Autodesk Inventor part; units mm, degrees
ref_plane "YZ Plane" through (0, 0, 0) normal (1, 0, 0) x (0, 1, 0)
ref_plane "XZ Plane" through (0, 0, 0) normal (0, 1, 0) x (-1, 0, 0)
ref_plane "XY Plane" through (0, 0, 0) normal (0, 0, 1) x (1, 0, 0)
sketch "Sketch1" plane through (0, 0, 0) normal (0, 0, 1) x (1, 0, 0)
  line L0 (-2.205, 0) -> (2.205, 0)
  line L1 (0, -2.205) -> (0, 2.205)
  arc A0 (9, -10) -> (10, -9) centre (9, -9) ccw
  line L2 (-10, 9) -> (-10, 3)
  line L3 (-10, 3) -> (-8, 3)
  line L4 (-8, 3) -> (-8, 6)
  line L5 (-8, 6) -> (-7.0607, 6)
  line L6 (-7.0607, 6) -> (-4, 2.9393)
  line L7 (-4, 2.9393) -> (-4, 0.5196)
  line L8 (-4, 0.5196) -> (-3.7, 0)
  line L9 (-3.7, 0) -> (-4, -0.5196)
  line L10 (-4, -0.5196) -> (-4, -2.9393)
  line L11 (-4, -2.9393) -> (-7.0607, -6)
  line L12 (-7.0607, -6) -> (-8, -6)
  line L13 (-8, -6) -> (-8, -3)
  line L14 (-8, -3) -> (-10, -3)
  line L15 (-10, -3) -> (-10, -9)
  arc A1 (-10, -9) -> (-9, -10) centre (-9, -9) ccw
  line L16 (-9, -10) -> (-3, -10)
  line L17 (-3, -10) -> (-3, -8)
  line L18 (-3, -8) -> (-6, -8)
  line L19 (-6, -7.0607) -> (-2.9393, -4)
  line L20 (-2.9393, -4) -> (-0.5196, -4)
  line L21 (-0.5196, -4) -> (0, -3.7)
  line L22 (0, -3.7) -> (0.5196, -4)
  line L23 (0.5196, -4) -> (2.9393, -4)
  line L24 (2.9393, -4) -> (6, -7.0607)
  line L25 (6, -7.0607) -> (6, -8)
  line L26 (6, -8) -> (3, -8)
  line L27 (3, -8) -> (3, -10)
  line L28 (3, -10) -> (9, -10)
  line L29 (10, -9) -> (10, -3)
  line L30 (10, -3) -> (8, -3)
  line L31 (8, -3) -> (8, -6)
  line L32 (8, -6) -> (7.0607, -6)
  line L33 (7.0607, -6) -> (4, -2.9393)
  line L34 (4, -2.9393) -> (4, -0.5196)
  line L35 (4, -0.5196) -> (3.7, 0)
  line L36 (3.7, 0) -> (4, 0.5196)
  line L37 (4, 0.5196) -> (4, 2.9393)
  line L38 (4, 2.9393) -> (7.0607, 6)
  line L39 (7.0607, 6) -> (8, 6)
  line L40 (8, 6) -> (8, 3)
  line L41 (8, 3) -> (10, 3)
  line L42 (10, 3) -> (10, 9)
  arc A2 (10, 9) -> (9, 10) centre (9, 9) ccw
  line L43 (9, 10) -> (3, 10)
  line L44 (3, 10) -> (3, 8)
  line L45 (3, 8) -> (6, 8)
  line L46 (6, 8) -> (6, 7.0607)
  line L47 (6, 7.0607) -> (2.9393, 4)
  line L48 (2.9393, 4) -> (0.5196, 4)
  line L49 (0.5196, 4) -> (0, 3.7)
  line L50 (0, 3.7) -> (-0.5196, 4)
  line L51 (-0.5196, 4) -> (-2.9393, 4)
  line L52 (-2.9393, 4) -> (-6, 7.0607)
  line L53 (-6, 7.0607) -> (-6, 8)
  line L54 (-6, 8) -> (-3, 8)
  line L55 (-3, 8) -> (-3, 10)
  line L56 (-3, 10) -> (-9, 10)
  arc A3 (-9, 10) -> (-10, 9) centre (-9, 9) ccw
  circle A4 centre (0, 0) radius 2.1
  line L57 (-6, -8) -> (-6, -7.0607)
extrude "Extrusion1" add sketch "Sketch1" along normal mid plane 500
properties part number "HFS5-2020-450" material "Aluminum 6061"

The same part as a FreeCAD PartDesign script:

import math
import FreeCAD as App
import Part
import Sketcher

V = App.Vector
Q = App.Units.Quantity

doc = App.newDocument("Part")
body = doc.addObject("PartDesign::Body", "Body")

# Sketch on XY plane
sketch1 = doc.addObject("Sketcher::SketchObject", "Sketch")
body.addObject(sketch1)
sketch1.AttachmentSupport = (doc.XY_Plane, [""])
sketch1.MapMode = "FlatFace"
sketch1.addGeometry(Part.LineSegment(V(3, -10, 0), V(9, -10, 0)), False)
sketch1.addGeometry(Part.ArcOfCircle(Part.Circle(V(9, -9, 0), V(0, 0, 1), 1), math.radians(-90), math.radians(0)), False)
sketch1.addGeometry(Part.LineSegment(V(10, -9, 0), V(10, -3, 0)), False)
sketch1.addGeometry(Part.LineSegment(V(10, -3, 0), V(8, -3, 0)), False)
sketch1.addGeometry(Part.LineSegment(V(8, -3, 0), V(8, -6, 0)), False)
sketch1.addGeometry(Part.LineSegment(V(8, -6, 0), V(7.1, -6, 0)), False)
sketch1.addGeometry(Part.LineSegment(V(7.1, -6, 0), V(4, -2.9, 0)), False)
sketch1.addGeometry(Part.LineSegment(V(4, -2.9, 0), V(4, -0.5, 0)), False)
sketch1.addGeometry(Part.LineSegment(V(4, -0.5, 0), V(3.7, 0, 0)), False)
sketch1.addGeometry(Part.LineSegment(V(3.7, 0, 0), V(4, 0.5, 0)), False)
sketch1.addGeometry(Part.LineSegment(V(4, 0.5, 0), V(4, 2.9, 0)), False)
sketch1.addGeometry(Part.LineSegment(V(4, 2.9, 0), V(7.1, 6, 0)), False)
sketch1.addGeometry(Part.LineSegment(V(7.1, 6, 0), V(8, 6, 0)), False)
sketch1.addGeometry(Part.LineSegment(V(8, 6, 0), V(8, 3, 0)), False)
sketch1.addGeometry(Part.LineSegment(V(8, 3, 0), V(10, 3, 0)), False)
sketch1.addGeometry(Part.LineSegment(V(10, 3, 0), V(10, 9, 0)), False)
sketch1.addGeometry(Part.ArcOfCircle(Part.Circle(V(9, 9, 0), V(0, 0, 1), 1), math.radians(0), math.radians(90)), False)
sketch1.addGeometry(Part.LineSegment(V(9, 10, 0), V(3, 10, 0)), False)
sketch1.addGeometry(Part.LineSegment(V(3, 10, 0), V(3, 8, 0)), False)
sketch1.addGeometry(Part.LineSegment(V(3, 8, 0), V(6, 8, 0)), False)
sketch1.addGeometry(Part.LineSegment(V(6, 8, 0), V(6, 7.1, 0)), False)
sketch1.addGeometry(Part.LineSegment(V(6, 7.1, 0), V(2.9, 4, 0)), False)
sketch1.addGeometry(Part.LineSegment(V(2.9, 4, 0), V(0.5, 4, 0)), False)
sketch1.addGeometry(Part.LineSegment(V(0.5, 4, 0), V(0, 3.7, 0)), False)
sketch1.addGeometry(Part.LineSegment(V(0, 3.7, 0), V(-0.5, 4, 0)), False)
sketch1.addGeometry(Part.LineSegment(V(-0.5, 4, 0), V(-2.9, 4, 0)), False)
sketch1.addGeometry(Part.LineSegment(V(-2.9, 4, 0), V(-6, 7.1, 0)), False)
sketch1.addGeometry(Part.LineSegment(V(-6, 7.1, 0), V(-6, 8, 0)), False)
sketch1.addGeometry(Part.LineSegment(V(-6, 8, 0), V(-3, 8, 0)), False)
sketch1.addGeometry(Part.LineSegment(V(-3, 8, 0), V(-3, 10, 0)), False)
sketch1.addGeometry(Part.LineSegment(V(-3, 10, 0), V(-9, 10, 0)), False)
sketch1.addGeometry(Part.ArcOfCircle(Part.Circle(V(-9, 9, 0), V(0, 0, 1), 1), math.radians(90), math.radians(180)), False)
sketch1.addGeometry(Part.LineSegment(V(-10, 9, 0), V(-10, 3, 0)), False)
sketch1.addGeometry(Part.LineSegment(V(-10, 3, 0), V(-8, 3, 0)), False)
sketch1.addGeometry(Part.LineSegment(V(-8, 3, 0), V(-8, 6, 0)), False)
sketch1.addGeometry(Part.LineSegment(V(-8, 6, 0), V(-7.1, 6, 0)), False)
sketch1.addGeometry(Part.LineSegment(V(-7.1, 6, 0), V(-4, 2.9, 0)), False)
sketch1.addGeometry(Part.LineSegment(V(-4, 2.9, 0), V(-4, 0.5, 0)), False)
sketch1.addGeometry(Part.LineSegment(V(-4, 0.5, 0), V(-3.7, 0, 0)), False)
sketch1.addGeometry(Part.LineSegment(V(-3.7, 0, 0), V(-4, -0.5, 0)), False)
sketch1.addGeometry(Part.LineSegment(V(-4, -0.5, 0), V(-4, -2.9, 0)), False)
sketch1.addGeometry(Part.LineSegment(V(-4, -2.9, 0), V(-7.1, -6, 0)), False)
sketch1.addGeometry(Part.LineSegment(V(-7.1, -6, 0), V(-8, -6, 0)), False)
sketch1.addGeometry(Part.LineSegment(V(-8, -6, 0), V(-8, -3, 0)), False)
sketch1.addGeometry(Part.LineSegment(V(-8, -3, 0), V(-10, -3, 0)), False)
sketch1.addGeometry(Part.LineSegment(V(-10, -3, 0), V(-10, -9, 0)), False)
sketch1.addGeometry(Part.ArcOfCircle(Part.Circle(V(-9, -9, 0), V(0, 0, 1), 1), math.radians(180), math.radians(270)), False)
sketch1.addGeometry(Part.LineSegment(V(-9, -10, 0), V(-3, -10, 0)), False)
sketch1.addGeometry(Part.LineSegment(V(-3, -10, 0), V(-3, -8, 0)), False)
sketch1.addGeometry(Part.LineSegment(V(-3, -8, 0), V(-6, -8, 0)), False)
sketch1.addGeometry(Part.LineSegment(V(-6, -8, 0), V(-6, -7.1, 0)), False)
sketch1.addGeometry(Part.LineSegment(V(-6, -7.1, 0), V(-2.9, -4, 0)), False)
sketch1.addGeometry(Part.LineSegment(V(-2.9, -4, 0), V(-0.5, -4, 0)), False)
sketch1.addGeometry(Part.LineSegment(V(-0.5, -4, 0), V(0, -3.7, 0)), False)
sketch1.addGeometry(Part.LineSegment(V(0, -3.7, 0), V(0.5, -4, 0)), False)
sketch1.addGeometry(Part.LineSegment(V(0.5, -4, 0), V(2.9, -4, 0)), False)
sketch1.addGeometry(Part.LineSegment(V(2.9, -4, 0), V(6, -7.1, 0)), False)
sketch1.addGeometry(Part.LineSegment(V(6, -7.1, 0), V(6, -8, 0)), False)
sketch1.addGeometry(Part.LineSegment(V(6, -8, 0), V(3, -8, 0)), False)
sketch1.addGeometry(Part.LineSegment(V(3, -8, 0), V(3, -10, 0)), False)
sketch1.addGeometry(Part.Circle(V(0, 0, 0), V(0, 0, 1), 2.1), False)
sketch1.addConstraint(Sketcher.Constraint("Tangent", 0, 2, 1, 1))
sketch1.addConstraint(Sketcher.Constraint("Tangent", 1, 2, 2, 1))
sketch1.addConstraint(Sketcher.Constraint("Coincident", 2, 2, 3, 1))
sketch1.addConstraint(Sketcher.Constraint("Coincident", 3, 2, 4, 1))
sketch1.addConstraint(Sketcher.Constraint("Coincident", 4, 2, 5, 1))
sketch1.addConstraint(Sketcher.Constraint("Coincident", 5, 2, 6, 1))
sketch1.addConstraint(Sketcher.Constraint("Coincident", 6, 2, 7, 1))
sketch1.addConstraint(Sketcher.Constraint("Coincident", 7, 2, 8, 1))
sketch1.addConstraint(Sketcher.Constraint("Coincident", 8, 2, 9, 1))
sketch1.addConstraint(Sketcher.Constraint("Coincident", 9, 2, 10, 1))
sketch1.addConstraint(Sketcher.Constraint("Coincident", 10, 2, 11, 1))
sketch1.addConstraint(Sketcher.Constraint("Coincident", 11, 2, 12, 1))
sketch1.addConstraint(Sketcher.Constraint("Coincident", 12, 2, 13, 1))
sketch1.addConstraint(Sketcher.Constraint("Coincident", 13, 2, 14, 1))
sketch1.addConstraint(Sketcher.Constraint("Coincident", 14, 2, 15, 1))
sketch1.addConstraint(Sketcher.Constraint("Tangent", 15, 2, 16, 1))
sketch1.addConstraint(Sketcher.Constraint("Tangent", 16, 2, 17, 1))
sketch1.addConstraint(Sketcher.Constraint("Coincident", 17, 2, 18, 1))
sketch1.addConstraint(Sketcher.Constraint("Coincident", 18, 2, 19, 1))
sketch1.addConstraint(Sketcher.Constraint("Coincident", 19, 2, 20, 1))
sketch1.addConstraint(Sketcher.Constraint("Coincident", 20, 2, 21, 1))
sketch1.addConstraint(Sketcher.Constraint("Coincident", 21, 2, 22, 1))
sketch1.addConstraint(Sketcher.Constraint("Coincident", 22, 2, 23, 1))
sketch1.addConstraint(Sketcher.Constraint("Coincident", 23, 2, 24, 1))
sketch1.addConstraint(Sketcher.Constraint("Coincident", 24, 2, 25, 1))
sketch1.addConstraint(Sketcher.Constraint("Coincident", 25, 2, 26, 1))
sketch1.addConstraint(Sketcher.Constraint("Coincident", 26, 2, 27, 1))
sketch1.addConstraint(Sketcher.Constraint("Coincident", 27, 2, 28, 1))
sketch1.addConstraint(Sketcher.Constraint("Coincident", 28, 2, 29, 1))
sketch1.addConstraint(Sketcher.Constraint("Coincident", 29, 2, 30, 1))
sketch1.addConstraint(Sketcher.Constraint("Tangent", 30, 2, 31, 1))
sketch1.addConstraint(Sketcher.Constraint("Tangent", 31, 2, 32, 1))
sketch1.addConstraint(Sketcher.Constraint("Coincident", 32, 2, 33, 1))
sketch1.addConstraint(Sketcher.Constraint("Coincident", 33, 2, 34, 1))
sketch1.addConstraint(Sketcher.Constraint("Coincident", 34, 2, 35, 1))
sketch1.addConstraint(Sketcher.Constraint("Coincident", 35, 2, 36, 1))
sketch1.addConstraint(Sketcher.Constraint("Coincident", 36, 2, 37, 1))
sketch1.addConstraint(Sketcher.Constraint("Coincident", 37, 2, 38, 1))
sketch1.addConstraint(Sketcher.Constraint("Coincident", 38, 2, 39, 1))
sketch1.addConstraint(Sketcher.Constraint("Coincident", 39, 2, 40, 1))
sketch1.addConstraint(Sketcher.Constraint("Coincident", 40, 2, 41, 1))
sketch1.addConstraint(Sketcher.Constraint("Coincident", 41, 2, 42, 1))
sketch1.addConstraint(Sketcher.Constraint("Coincident", 42, 2, 43, 1))
sketch1.addConstraint(Sketcher.Constraint("Coincident", 43, 2, 44, 1))
sketch1.addConstraint(Sketcher.Constraint("Coincident", 44, 2, 45, 1))
sketch1.addConstraint(Sketcher.Constraint("Tangent", 45, 2, 46, 1))
sketch1.addConstraint(Sketcher.Constraint("Tangent", 46, 2, 47, 1))
sketch1.addConstraint(Sketcher.Constraint("Coincident", 47, 2, 48, 1))
sketch1.addConstraint(Sketcher.Constraint("Coincident", 48, 2, 49, 1))
sketch1.addConstraint(Sketcher.Constraint("Coincident", 49, 2, 50, 1))
sketch1.addConstraint(Sketcher.Constraint("Coincident", 50, 2, 51, 1))
sketch1.addConstraint(Sketcher.Constraint("Coincident", 51, 2, 52, 1))
sketch1.addConstraint(Sketcher.Constraint("Coincident", 52, 2, 53, 1))
sketch1.addConstraint(Sketcher.Constraint("Coincident", 53, 2, 54, 1))
sketch1.addConstraint(Sketcher.Constraint("Coincident", 54, 2, 55, 1))
sketch1.addConstraint(Sketcher.Constraint("Coincident", 55, 2, 56, 1))
sketch1.addConstraint(Sketcher.Constraint("Coincident", 56, 2, 57, 1))
sketch1.addConstraint(Sketcher.Constraint("Coincident", 57, 2, 58, 1))
sketch1.addConstraint(Sketcher.Constraint("Coincident", 58, 2, 59, 1))
sketch1.addConstraint(Sketcher.Constraint("Coincident", 59, 2, 0, 1))
sketch1.addConstraint(Sketcher.Constraint("Horizontal", 0))
sketch1.addConstraint(Sketcher.Constraint("Vertical", 2))
sketch1.addConstraint(Sketcher.Constraint("Horizontal", 3))
sketch1.addConstraint(Sketcher.Constraint("Vertical", 4))
sketch1.addConstraint(Sketcher.Constraint("Horizontal", 5))
sketch1.addConstraint(Sketcher.Constraint("Vertical", 7))
sketch1.addConstraint(Sketcher.Constraint("Vertical", 10))
sketch1.addConstraint(Sketcher.Constraint("Horizontal", 12))
sketch1.addConstraint(Sketcher.Constraint("Vertical", 13))
sketch1.addConstraint(Sketcher.Constraint("Horizontal", 14))
sketch1.addConstraint(Sketcher.Constraint("Vertical", 15))
sketch1.addConstraint(Sketcher.Constraint("Horizontal", 17))
sketch1.addConstraint(Sketcher.Constraint("Vertical", 18))
sketch1.addConstraint(Sketcher.Constraint("Horizontal", 19))
sketch1.addConstraint(Sketcher.Constraint("Vertical", 20))
sketch1.addConstraint(Sketcher.Constraint("Horizontal", 22))
sketch1.addConstraint(Sketcher.Constraint("Horizontal", 25))
sketch1.addConstraint(Sketcher.Constraint("Vertical", 27))
sketch1.addConstraint(Sketcher.Constraint("Horizontal", 28))
sketch1.addConstraint(Sketcher.Constraint("Vertical", 29))
sketch1.addConstraint(Sketcher.Constraint("Horizontal", 30))
sketch1.addConstraint(Sketcher.Constraint("Vertical", 32))
sketch1.addConstraint(Sketcher.Constraint("Horizontal", 33))
sketch1.addConstraint(Sketcher.Constraint("Vertical", 34))
sketch1.addConstraint(Sketcher.Constraint("Horizontal", 35))
sketch1.addConstraint(Sketcher.Constraint("Vertical", 37))
sketch1.addConstraint(Sketcher.Constraint("Vertical", 40))
sketch1.addConstraint(Sketcher.Constraint("Horizontal", 42))
sketch1.addConstraint(Sketcher.Constraint("Vertical", 43))
sketch1.addConstraint(Sketcher.Constraint("Horizontal", 44))
sketch1.addConstraint(Sketcher.Constraint("Vertical", 45))
sketch1.addConstraint(Sketcher.Constraint("Horizontal", 47))
sketch1.addConstraint(Sketcher.Constraint("Vertical", 48))
sketch1.addConstraint(Sketcher.Constraint("Horizontal", 49))
sketch1.addConstraint(Sketcher.Constraint("Vertical", 50))
sketch1.addConstraint(Sketcher.Constraint("Horizontal", 52))
sketch1.addConstraint(Sketcher.Constraint("Horizontal", 55))
sketch1.addConstraint(Sketcher.Constraint("Vertical", 57))
sketch1.addConstraint(Sketcher.Constraint("Horizontal", 58))
sketch1.addConstraint(Sketcher.Constraint("Vertical", 59))
sketch1.addConstraint(Sketcher.Constraint("Coincident", 60, 3, -1, 1))
sketch1.addConstraint(Sketcher.Constraint("Equal", 1, 16))
sketch1.addConstraint(Sketcher.Constraint("Equal", 16, 31))
sketch1.addConstraint(Sketcher.Constraint("Equal", 31, 46))
sketch1.addConstraint(Sketcher.Constraint("Symmetric", 1, 3, 31, 3, -1, 1))
sketch1.addConstraint(Sketcher.Constraint("Symmetric", 16, 3, 46, 3, -1, 1))
sketch1.addConstraint(Sketcher.Constraint("Symmetric", 3, 2, 33, 2, -1, 1))
sketch1.addConstraint(Sketcher.Constraint("Symmetric", 5, 2, 35, 2, -1, 1))
sketch1.addConstraint(Sketcher.Constraint("Symmetric", 6, 2, 36, 2, -1, 1))
sketch1.addConstraint(Sketcher.Constraint("Symmetric", 8, 2, 38, 2, -1, 1))
sketch1.addConstraint(Sketcher.Constraint("Symmetric", 9, 2, 39, 2, -1, 1))
sketch1.addConstraint(Sketcher.Constraint("Symmetric", 11, 2, 41, 2, -1, 1))
sketch1.addConstraint(Sketcher.Constraint("Symmetric", 13, 2, 43, 2, -1, 1))
sketch1.addConstraint(Sketcher.Constraint("Symmetric", 18, 2, 48, 2, -1, 1))
sketch1.addConstraint(Sketcher.Constraint("Symmetric", 20, 2, 50, 2, -1, 1))
sketch1.addConstraint(Sketcher.Constraint("Symmetric", 21, 2, 51, 2, -1, 1))
sketch1.addConstraint(Sketcher.Constraint("Symmetric", 23, 2, 53, 2, -1, 1))
sketch1.addConstraint(Sketcher.Constraint("Symmetric", 24, 2, 54, 2, -1, 1))
sketch1.addConstraint(Sketcher.Constraint("Symmetric", 26, 2, 56, 2, -1, 1))
sketch1.addConstraint(Sketcher.Constraint("Symmetric", 28, 2, 58, 2, -1, 1))
sketch1.addConstraint(Sketcher.Constraint("Symmetric", 16, 3, 31, 3, -2))
sketch1.addConstraint(Sketcher.Constraint("Symmetric", 22, 2, 24, 2, -2))
sketch1.addConstraint(Sketcher.Constraint("Symmetric", 20, 2, 26, 2, -2))
sketch1.addConstraint(Sketcher.Constraint("Symmetric", 18, 2, 28, 2, -2))
sketch1.addConstraint(Sketcher.Constraint("Symmetric", 13, 2, 33, 2, -2))
sketch1.addConstraint(Sketcher.Constraint("Symmetric", 11, 2, 35, 2, -2))
sketch1.addConstraint(Sketcher.Constraint("Symmetric", 10, 2, 36, 2, -2))
sketch1.addConstraint(Sketcher.Constraint("PointOnObject", 8, 2, -1))
sketch1.addConstraint(Sketcher.Constraint("PointOnObject", 23, 2, -2))
sketch1.addConstraint(Sketcher.Constraint("Perpendicular", 6, 11))
sketch1.addConstraint(Sketcher.Constraint("Parallel", 11, 21))
sketch1.addConstraint(Sketcher.Constraint("Perpendicular", 8, 23))
sketch1.addConstraint(Sketcher.Constraint("Perpendicular", 9, 24))
sketch1.addConstraint(Sketcher.Constraint("Perpendicular", 21, 26))
sketch1.addConstraint(Sketcher.Constraint("Perpendicular", 23, 38))
sketch1.addConstraint(Sketcher.Constraint("Perpendicular", 36, 41))
sketch1.addConstraint(Sketcher.Constraint("Perpendicular", 38, 53))
sketch1.addConstraint(Sketcher.Constraint("Perpendicular", 51, 56))
sketch1.addConstraint(Sketcher.Constraint("Equal", 47, 2))
sketch1.addConstraint(Sketcher.Constraint("Equal", 58, 4))
sketch1.addConstraint(Sketcher.Constraint("Equal", 55, 7))
sketch1.addConstraint(Sketcher.Constraint("Equal", 44, 18))
sketch1.addConstraint(Sketcher.Constraint("Equal", 42, 20))
sketch1.addConstraint(Sketcher.Constraint("Equal", 11, 21))
sketch1.addConstraint(Sketcher.Constraint("Equal", 9, 23))
sketch1.addConstraint(Sketcher.Constraint("Radius", 1, Q("1 mm")))
sketch1.addConstraint(Sketcher.Constraint("Diameter", 60, Q("4.2 mm")))
sketch1.addConstraint(Sketcher.Constraint("DistanceX", 0, 1, 0, 2, Q("6 mm")))
sketch1.addConstraint(Sketcher.Constraint("DistanceX", 3, 2, 3, 1, Q("2 mm")))
sketch1.addConstraint(Sketcher.Constraint("DistanceX", 19, 1, 19, 2, Q("3 mm")))
sketch1.addConstraint(Sketcher.Constraint("Angle", 8, Q("120.0007 deg")))
sketch1.addConstraint(Sketcher.Constraint("DistanceX", -1, 1, 1, 3, Q("9 mm")))
sketch1.addConstraint(Sketcher.Constraint("DistanceX", -1, 1, 6, 2, Q("4 mm")))
sketch1.addConstraint(Sketcher.Constraint("Distance", 8, Q("0.6 mm")))
sketch1.addConstraint(Sketcher.Constraint("DistanceX", 5, 2, 5, 1, Q("0.9393 mm")))
pad1 = doc.addObject("PartDesign::Pad", "Pad")
body.addObject(pad1)
pad1.Profile = sketch1
pad1.Length = 500
pad1.Midplane = True

doc.recompute()
